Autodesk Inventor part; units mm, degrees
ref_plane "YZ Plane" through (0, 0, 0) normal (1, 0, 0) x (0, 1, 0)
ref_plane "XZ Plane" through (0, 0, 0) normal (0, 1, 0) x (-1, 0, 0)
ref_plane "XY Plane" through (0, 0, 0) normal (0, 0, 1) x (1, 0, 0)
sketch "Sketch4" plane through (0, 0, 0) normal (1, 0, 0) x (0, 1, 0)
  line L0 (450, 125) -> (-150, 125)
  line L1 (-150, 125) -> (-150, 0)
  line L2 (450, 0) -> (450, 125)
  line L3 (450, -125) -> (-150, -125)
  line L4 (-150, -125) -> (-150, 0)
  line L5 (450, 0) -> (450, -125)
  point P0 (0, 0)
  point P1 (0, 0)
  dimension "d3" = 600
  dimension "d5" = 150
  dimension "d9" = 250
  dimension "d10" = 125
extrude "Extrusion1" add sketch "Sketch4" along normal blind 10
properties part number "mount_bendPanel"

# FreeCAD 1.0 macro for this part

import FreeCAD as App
import Part
import Sketcher

V = App.Vector
Q = App.Units.Quantity


def add_polygon(sketch, points):
    """Adds a closed chain of lines whose ends are joined by coincident constraints."""
    first, n = sketch.GeometryCount, len(points)
    for a, b in zip(points, points[1:] + points[:1]):
        sketch.addGeometry(Part.LineSegment(App.Vector(*a, 0), App.Vector(*b, 0)), False)
    for i in range(n):
        sketch.addConstraint(Sketcher.Constraint("Coincident", first + i, 2, first + (i + 1) % n, 1))

doc = App.newDocument("Part")
body = doc.addObject("PartDesign::Body", "Body")

# Sketch on YZ plane
sketch1 = body.newObject("Sketcher::SketchObject", "Sketch")
sketch1.AttachmentSupport = (doc.getObject("YZ_Plane"), [""])
sketch1.MapMode = "FlatFace"
add_polygon(sketch1, [(450, -125), (450, 125), (-150, 125), (-150, -125)])  # lines 0-3
sketch1.addConstraint([
    Sketcher.Constraint("Vertical", 0),
    Sketcher.Constraint("Horizontal", 1),
    Sketcher.Constraint("Vertical", 2),
    Sketcher.Constraint("Horizontal", 3),
    Sketcher.Constraint("DistanceX", 1, 2, 1, 1, Q("600 mm")),
    Sketcher.Constraint("DistanceY", 0, 1, 0, 2, Q("250 mm")),
    Sketcher.Constraint("DistanceY", -1, 1, 0, 2, Q("125 mm")),
    Sketcher.Constraint("DistanceX", 1, 2, -1, 1, Q("150 mm")),
])
pad1 = body.newObject("PartDesign::Pad", "Pad")
pad1.Profile = sketch1
pad1.Length = 10

doc.recompute()
